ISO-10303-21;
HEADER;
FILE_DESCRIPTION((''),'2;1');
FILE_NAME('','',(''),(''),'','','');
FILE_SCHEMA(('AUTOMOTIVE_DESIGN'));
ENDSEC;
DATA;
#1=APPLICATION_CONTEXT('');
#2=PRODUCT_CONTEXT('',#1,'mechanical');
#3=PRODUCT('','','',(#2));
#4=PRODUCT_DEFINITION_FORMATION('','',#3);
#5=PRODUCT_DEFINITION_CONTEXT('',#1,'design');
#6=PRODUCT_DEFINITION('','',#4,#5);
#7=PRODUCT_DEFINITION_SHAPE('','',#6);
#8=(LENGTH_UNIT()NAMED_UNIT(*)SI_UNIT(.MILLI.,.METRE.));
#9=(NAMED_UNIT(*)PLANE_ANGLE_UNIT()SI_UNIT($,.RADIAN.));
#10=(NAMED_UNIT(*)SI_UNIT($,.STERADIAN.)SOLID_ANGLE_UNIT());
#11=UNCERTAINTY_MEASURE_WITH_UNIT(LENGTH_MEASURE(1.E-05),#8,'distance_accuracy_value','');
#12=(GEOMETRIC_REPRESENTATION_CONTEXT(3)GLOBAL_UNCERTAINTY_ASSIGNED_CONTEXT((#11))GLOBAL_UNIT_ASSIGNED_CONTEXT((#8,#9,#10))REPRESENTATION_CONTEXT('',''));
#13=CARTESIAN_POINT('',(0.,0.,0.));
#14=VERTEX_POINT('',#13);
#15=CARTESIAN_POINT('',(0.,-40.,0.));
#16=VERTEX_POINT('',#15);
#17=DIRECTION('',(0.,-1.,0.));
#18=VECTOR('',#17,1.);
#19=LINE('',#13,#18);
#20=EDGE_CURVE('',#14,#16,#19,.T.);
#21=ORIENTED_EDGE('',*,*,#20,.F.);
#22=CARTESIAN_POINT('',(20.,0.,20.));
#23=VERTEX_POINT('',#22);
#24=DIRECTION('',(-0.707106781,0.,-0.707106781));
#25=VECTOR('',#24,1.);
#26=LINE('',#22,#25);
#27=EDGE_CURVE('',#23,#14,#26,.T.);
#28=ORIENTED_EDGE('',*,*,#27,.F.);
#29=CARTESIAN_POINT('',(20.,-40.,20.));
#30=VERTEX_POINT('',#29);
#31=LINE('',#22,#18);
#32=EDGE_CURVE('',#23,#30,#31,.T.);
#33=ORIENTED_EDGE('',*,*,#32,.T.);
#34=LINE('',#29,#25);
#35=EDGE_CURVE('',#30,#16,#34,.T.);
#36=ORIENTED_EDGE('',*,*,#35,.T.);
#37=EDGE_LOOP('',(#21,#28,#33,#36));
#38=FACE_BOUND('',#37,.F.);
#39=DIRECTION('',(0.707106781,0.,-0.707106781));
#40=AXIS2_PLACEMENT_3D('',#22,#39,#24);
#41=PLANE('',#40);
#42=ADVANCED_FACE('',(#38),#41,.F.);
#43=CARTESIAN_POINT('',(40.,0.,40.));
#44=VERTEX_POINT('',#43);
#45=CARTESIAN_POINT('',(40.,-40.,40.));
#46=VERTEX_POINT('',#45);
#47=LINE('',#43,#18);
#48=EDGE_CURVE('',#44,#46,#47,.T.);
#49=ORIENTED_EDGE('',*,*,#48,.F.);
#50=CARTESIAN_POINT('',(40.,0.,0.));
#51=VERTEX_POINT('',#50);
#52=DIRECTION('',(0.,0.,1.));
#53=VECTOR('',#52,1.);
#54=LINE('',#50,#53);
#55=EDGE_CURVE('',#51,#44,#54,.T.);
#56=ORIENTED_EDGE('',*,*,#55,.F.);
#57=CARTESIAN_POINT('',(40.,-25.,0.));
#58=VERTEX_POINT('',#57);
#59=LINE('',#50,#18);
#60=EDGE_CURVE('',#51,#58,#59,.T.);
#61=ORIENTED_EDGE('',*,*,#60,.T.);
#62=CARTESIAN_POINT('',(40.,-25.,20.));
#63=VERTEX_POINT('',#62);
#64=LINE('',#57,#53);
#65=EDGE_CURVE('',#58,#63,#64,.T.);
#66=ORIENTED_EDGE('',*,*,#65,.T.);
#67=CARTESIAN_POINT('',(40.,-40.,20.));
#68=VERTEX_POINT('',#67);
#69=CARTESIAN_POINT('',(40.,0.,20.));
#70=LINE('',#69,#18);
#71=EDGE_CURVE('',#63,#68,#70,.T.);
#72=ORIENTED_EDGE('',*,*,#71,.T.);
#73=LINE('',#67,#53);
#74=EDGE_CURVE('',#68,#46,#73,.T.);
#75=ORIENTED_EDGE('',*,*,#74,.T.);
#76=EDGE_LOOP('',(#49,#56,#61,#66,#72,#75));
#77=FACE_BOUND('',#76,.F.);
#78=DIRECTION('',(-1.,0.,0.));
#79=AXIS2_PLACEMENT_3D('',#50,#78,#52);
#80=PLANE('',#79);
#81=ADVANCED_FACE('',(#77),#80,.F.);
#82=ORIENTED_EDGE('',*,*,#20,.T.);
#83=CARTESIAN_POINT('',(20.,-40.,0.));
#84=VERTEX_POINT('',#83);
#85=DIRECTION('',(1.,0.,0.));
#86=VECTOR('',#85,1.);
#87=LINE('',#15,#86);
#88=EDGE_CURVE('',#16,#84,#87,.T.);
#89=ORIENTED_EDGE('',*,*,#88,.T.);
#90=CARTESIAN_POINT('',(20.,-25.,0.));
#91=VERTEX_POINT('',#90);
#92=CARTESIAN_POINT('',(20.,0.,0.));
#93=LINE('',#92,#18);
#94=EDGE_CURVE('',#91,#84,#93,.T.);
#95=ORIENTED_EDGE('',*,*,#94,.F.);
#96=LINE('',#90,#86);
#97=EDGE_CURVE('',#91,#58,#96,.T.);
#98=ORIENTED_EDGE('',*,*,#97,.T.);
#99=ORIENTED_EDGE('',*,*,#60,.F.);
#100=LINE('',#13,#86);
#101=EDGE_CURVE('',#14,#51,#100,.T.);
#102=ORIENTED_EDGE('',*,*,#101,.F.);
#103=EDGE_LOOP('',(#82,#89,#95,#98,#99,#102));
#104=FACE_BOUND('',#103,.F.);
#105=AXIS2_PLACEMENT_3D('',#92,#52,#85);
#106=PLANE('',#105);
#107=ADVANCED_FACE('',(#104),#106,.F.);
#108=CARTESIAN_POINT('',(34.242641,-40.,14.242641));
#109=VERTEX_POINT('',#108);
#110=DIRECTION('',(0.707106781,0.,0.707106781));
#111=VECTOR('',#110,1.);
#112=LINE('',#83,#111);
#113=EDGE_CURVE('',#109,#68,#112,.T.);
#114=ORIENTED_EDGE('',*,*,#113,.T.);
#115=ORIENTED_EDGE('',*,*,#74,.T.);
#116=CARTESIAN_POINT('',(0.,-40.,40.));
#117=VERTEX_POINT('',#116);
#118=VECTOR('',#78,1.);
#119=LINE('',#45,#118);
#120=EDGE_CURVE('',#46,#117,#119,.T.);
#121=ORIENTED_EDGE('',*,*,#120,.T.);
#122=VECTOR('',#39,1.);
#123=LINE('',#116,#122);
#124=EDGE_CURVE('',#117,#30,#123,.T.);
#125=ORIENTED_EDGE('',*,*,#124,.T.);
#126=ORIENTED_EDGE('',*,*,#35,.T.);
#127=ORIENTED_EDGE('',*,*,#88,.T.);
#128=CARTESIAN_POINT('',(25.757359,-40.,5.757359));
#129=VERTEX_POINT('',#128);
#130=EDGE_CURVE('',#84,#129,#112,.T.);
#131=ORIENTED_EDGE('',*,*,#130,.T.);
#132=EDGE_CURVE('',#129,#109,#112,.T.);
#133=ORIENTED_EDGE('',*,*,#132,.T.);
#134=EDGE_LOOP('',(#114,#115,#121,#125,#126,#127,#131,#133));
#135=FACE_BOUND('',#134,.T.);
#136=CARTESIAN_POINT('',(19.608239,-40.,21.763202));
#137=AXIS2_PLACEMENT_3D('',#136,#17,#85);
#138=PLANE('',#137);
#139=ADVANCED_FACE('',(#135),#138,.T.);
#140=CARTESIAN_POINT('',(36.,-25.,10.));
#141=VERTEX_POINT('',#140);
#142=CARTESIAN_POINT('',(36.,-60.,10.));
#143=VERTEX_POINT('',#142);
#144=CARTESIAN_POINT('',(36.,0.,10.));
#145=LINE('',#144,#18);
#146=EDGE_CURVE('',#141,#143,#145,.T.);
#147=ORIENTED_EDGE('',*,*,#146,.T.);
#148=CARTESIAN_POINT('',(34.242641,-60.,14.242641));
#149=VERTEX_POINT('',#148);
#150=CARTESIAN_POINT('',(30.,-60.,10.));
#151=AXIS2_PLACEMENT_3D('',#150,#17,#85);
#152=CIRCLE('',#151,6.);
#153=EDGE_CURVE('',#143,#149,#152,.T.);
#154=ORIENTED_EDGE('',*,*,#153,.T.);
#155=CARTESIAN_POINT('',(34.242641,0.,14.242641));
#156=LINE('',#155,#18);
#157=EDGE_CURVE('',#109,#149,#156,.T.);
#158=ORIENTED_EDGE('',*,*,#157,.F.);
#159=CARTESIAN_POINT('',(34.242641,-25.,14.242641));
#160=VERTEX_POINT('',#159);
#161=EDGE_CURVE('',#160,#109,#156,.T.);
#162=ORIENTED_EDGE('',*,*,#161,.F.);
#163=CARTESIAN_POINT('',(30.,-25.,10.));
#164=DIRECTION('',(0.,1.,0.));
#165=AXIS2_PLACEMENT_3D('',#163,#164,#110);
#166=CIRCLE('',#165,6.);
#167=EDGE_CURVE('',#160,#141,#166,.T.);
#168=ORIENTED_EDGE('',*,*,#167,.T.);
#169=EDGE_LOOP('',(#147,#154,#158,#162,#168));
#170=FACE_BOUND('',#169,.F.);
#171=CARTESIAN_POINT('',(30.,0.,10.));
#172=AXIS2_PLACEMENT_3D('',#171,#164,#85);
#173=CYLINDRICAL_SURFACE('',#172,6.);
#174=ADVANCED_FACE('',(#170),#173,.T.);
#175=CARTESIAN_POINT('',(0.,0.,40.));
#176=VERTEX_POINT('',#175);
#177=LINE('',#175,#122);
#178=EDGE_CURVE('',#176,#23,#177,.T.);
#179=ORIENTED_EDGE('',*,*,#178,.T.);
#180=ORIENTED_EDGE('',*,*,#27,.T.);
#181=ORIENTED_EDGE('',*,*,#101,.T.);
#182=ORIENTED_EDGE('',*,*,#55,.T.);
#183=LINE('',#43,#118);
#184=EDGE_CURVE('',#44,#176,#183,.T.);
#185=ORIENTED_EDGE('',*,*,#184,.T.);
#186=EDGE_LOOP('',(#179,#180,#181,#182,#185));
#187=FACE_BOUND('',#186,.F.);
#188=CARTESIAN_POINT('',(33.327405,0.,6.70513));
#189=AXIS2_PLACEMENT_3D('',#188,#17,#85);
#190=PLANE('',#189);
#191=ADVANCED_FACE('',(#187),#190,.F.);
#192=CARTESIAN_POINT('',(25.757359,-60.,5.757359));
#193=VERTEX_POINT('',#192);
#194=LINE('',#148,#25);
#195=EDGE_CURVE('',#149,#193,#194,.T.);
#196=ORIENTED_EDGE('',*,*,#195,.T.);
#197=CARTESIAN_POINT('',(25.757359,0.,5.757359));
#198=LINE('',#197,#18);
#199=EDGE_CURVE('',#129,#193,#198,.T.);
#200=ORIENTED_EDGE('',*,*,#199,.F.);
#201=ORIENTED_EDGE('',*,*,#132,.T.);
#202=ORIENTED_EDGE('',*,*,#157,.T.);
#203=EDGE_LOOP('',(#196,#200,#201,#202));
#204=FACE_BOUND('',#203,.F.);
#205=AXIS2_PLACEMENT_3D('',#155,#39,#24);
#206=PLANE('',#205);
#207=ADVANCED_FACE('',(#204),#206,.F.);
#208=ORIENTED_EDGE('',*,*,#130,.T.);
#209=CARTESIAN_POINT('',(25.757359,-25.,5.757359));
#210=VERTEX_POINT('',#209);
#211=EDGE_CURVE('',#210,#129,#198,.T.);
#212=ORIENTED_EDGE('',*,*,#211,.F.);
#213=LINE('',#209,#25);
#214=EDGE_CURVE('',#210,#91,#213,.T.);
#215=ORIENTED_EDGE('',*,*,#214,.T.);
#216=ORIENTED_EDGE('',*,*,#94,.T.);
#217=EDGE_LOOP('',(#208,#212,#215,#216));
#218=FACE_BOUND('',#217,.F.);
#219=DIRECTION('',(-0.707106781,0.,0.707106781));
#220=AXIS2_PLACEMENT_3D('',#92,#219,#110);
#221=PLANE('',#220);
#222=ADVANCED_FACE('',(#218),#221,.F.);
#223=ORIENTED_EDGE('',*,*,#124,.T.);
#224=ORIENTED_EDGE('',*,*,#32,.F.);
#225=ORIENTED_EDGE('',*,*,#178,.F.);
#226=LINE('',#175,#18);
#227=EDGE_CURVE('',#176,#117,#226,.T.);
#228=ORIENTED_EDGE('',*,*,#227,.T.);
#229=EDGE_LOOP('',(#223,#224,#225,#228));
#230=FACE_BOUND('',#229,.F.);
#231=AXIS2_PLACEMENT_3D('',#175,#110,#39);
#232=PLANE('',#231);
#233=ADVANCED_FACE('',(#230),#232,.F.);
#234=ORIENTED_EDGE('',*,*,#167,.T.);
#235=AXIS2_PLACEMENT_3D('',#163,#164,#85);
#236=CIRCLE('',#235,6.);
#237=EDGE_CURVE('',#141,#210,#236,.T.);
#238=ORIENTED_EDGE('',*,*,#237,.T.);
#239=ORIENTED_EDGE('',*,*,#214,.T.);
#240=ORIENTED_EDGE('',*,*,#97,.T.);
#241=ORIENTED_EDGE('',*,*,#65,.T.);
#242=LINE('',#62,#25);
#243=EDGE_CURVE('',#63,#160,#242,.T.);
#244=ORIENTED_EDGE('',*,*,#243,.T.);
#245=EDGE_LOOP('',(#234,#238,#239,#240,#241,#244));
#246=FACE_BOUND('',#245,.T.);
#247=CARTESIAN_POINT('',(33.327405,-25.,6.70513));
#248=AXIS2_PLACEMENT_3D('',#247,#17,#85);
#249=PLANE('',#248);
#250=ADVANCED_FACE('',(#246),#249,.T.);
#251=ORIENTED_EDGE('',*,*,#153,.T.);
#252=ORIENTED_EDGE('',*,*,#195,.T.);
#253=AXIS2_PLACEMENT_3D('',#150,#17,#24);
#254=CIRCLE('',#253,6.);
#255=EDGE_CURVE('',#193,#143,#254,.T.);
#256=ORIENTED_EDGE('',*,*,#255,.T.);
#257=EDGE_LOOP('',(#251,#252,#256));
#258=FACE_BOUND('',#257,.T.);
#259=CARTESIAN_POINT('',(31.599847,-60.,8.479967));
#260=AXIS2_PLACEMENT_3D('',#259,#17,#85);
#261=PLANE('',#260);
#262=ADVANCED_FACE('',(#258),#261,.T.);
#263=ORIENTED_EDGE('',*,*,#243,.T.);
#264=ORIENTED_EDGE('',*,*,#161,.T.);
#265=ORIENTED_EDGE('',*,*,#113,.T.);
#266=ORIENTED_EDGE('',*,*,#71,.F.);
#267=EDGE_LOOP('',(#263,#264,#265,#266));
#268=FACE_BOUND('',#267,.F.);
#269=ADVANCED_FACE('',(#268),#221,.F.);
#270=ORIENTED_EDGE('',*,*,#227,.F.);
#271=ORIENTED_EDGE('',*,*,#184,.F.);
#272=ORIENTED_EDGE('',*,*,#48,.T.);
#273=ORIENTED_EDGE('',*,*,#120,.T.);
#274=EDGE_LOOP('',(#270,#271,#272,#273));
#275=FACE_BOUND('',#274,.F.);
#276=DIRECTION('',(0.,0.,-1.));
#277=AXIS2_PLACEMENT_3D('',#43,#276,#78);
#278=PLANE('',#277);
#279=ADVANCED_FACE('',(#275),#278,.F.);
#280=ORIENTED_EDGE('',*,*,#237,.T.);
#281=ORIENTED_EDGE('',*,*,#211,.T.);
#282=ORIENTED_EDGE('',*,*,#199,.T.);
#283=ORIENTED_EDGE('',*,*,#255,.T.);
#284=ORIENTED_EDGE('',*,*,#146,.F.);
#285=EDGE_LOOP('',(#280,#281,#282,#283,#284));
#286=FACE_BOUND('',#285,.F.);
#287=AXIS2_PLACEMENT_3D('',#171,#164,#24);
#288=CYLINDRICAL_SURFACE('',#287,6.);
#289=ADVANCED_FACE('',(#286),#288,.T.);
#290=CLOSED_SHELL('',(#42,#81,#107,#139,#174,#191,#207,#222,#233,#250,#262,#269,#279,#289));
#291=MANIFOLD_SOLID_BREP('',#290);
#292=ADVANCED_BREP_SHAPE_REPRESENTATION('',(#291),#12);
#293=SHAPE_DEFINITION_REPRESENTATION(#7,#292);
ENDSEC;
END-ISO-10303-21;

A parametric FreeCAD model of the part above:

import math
import FreeCAD as App
import Part
import Sketcher

V = App.Vector
Q = App.Units.Quantity

doc = App.newDocument("Part")
body = doc.addObject("PartDesign::Body", "Body")

# Sketch on XZ plane
sketch1 = doc.addObject("Sketcher::SketchObject", "Sketch")
body.addObject(sketch1)
sketch1.AttachmentSupport = (doc.XZ_Plane, [""])
sketch1.MapMode = "FlatFace"
sketch1.addGeometry(Part.LineSegment(V(20, 20, 0), V(0, 0, 0)), False)
sketch1.addGeometry(Part.LineSegment(V(0, 0, 0), V(20, 0, 0)), False)
sketch1.addGeometry(Part.LineSegment(V(20, 0, 0), V(40, 20, 0)), False)
sketch1.addGeometry(Part.LineSegment(V(40, 20, 0), V(40, 40, 0)), False)
sketch1.addGeometry(Part.LineSegment(V(40, 40, 0), V(0, 40, 0)), False)
sketch1.addGeometry(Part.LineSegment(V(0, 40, 0), V(20, 20, 0)), False)
sketch1.addConstraint(Sketcher.Constraint("Coincident", 0, 2, 1, 1))
sketch1.addConstraint(Sketcher.Constraint("Coincident", 1, 2, 2, 1))
sketch1.addConstraint(Sketcher.Constraint("Coincident", 2, 2, 3, 1))
sketch1.addConstraint(Sketcher.Constraint("Coincident", 3, 2, 4, 1))
sketch1.addConstraint(Sketcher.Constraint("Coincident", 4, 2, 5, 1))
sketch1.addConstraint(Sketcher.Constraint("Coincident", 5, 2, 0, 1))
sketch1.addConstraint(Sketcher.Constraint("Horizontal", 1))
sketch1.addConstraint(Sketcher.Constraint("Vertical", 3))
sketch1.addConstraint(Sketcher.Constraint("Horizontal", 4))
sketch1.addConstraint(Sketcher.Constraint("Coincident", 0, 2, -1, 1))
sketch1.addConstraint(Sketcher.Constraint("PointOnObject", 4, 2, -2))
sketch1.addConstraint(Sketcher.Constraint("Parallel", 0, 2))
sketch1.addConstraint(Sketcher.Constraint("Perpendicular", 2, 5))
sketch1.addConstraint(Sketcher.Constraint("Horizontal", 2, 2, 5, 2))
sketch1.addConstraint(Sketcher.Constraint("Vertical", 1, 2, 5, 2))
sketch1.addConstraint(Sketcher.Constraint("Equal", 1, 3))
sketch1.addConstraint(Sketcher.Constraint("DistanceX", 1, 1, 1, 2, 20.0))
pad1 = doc.addObject("PartDesign::Pad", "Pad")
body.addObject(pad1)
pad1.Profile = sketch1
pad1.Length = 40

# Sketch on XZ plane
sketch2 = doc.addObject("Sketcher::SketchObject", "Sketch001")
body.addObject(sketch2)
sketch2.AttachmentSupport = (doc.XZ_Plane, [""])
sketch2.MapMode = "FlatFace"
sketch2.addGeometry(Part.LineSegment(V(25.8, 5.8, 0), V(20, 0, 0)), False)
sketch2.addGeometry(Part.LineSegment(V(20, 0, 0), V(40, 0, 0)), False)
sketch2.addGeometry(Part.LineSegment(V(40, 0, 0), V(40, 20, 0)), False)
sketch2.addGeometry(Part.LineSegment(V(40, 20, 0), V(34.2, 14.2, 0)), False)
sketch2.addGeometry(Part.ArcOfCircle(Part.Circle(V(30, 10, 0), V(0, 0, 1), 6), math.radians(0), math.radians(45)), False)
sketch2.addGeometry(Part.ArcOfCircle(Part.Circle(V(30, 10, 0), V(0, 0, 1), 6), math.radians(-135), math.radians(0)), False)
sketch2.addConstraint(Sketcher.Constraint("Coincident", 0, 2, 1, 1))
sketch2.addConstraint(Sketcher.Constraint("Coincident", 1, 2, 2, 1))
sketch2.addConstraint(Sketcher.Constraint("Coincident", 2, 2, 3, 1))
sketch2.addConstraint(Sketcher.Constraint("Coincident", 3, 2, 4, 2))
sketch2.addConstraint(Sketcher.Constraint("Tangent", 4, 1, 5, 2))
sketch2.addConstraint(Sketcher.Constraint("Coincident", 5, 1, 0, 1))
sketch2.addConstraint(Sketcher.Constraint("Horizontal", 1))
sketch2.addConstraint(Sketcher.Constraint("Vertical", 2))
sketch2.addConstraint(Sketcher.Constraint("Equal", 4, 5))
sketch2.addConstraint(Sketcher.Constraint("PointOnObject", 0, 2, -1))
sketch2.addConstraint(Sketcher.Constraint("Parallel", 0, 3))
sketch2.addConstraint(Sketcher.Constraint("Horizontal", 5, 3, 4, 1))
sketch2.addConstraint(Sketcher.Constraint("Equal", 1, 2))
sketch2.addConstraint(Sketcher.Constraint("Equal", 0, 3))
sketch2.addConstraint(Sketcher.Constraint("Radius", 4, 6.0))
sketch2.addConstraint(Sketcher.Constraint("DistanceX", 1, 1, 1, 2, 20.0))
sketch2.addConstraint(Sketcher.Constraint("Angle", 0, Q("-135 deg")))
sketch2.addConstraint(Sketcher.Constraint("DistanceX", -1, 1, 4, 3, 30.0))
sketch2.addConstraint(Sketcher.Constraint("DistanceY", -1, 1, 4, 3, 10.0))
pad2 = doc.addObject("PartDesign::Pad", "Pad001")
body.addObject(pad2)
pad2.Profile = sketch2
pad2.Length = 25

# Sketch on XZ plane
sketch3 = doc.addObject("Sketcher::SketchObject", "Sketch002")
body.addObject(sketch3)
sketch3.AttachmentSupport = (doc.XZ_Plane, [""])
sketch3.MapMode = "FlatFace"
sketch3.addGeometry(Part.LineSegment(V(34.2, 14.2, 0), V(25.8, 5.8, 0)), False)
sketch3.addGeometry(Part.ArcOfCircle(Part.Circle(V(30, 10, 0), V(0, 0, 1), 6), math.radians(-135), math.radians(0)), False)
sketch3.addGeometry(Part.ArcOfCircle(Part.Circle(V(30, 10, 0), V(0, 0, 1), 6), math.radians(0), math.radians(45)), False)
sketch3.addConstraint(Sketcher.Constraint("Coincident", 0, 2, 1, 1))
sketch3.addConstraint(Sketcher.Constraint("Tangent", 1, 2, 2, 1))
sketch3.addConstraint(Sketcher.Constraint("Coincident", 2, 2, 0, 1))
sketch3.addConstraint(Sketcher.Constraint("Equal", 1, 2))
sketch3.addConstraint(Sketcher.Constraint("Horizontal", 2, 3, 1, 2))
sketch3.addConstraint(Sketcher.Constraint("Radius", 1, 6.0))
sketch3.addConstraint(Sketcher.Constraint("Angle", 0, Q("-135 deg")))
sketch3.addConstraint(Sketcher.Constraint("DistanceX", -1, 1, 1, 3, 30.0))
sketch3.addConstraint(Sketcher.Constraint("DistanceY", -1, 1, 1, 3, 10.0))
sketch3.addConstraint(Sketcher.Constraint("DistanceX", -1, 1, 0, 2, 25.757359))
pad3 = doc.addObject("PartDesign::Pad", "Pad002")
body.addObject(pad3)
pad3.Profile = sketch3
pad3.Length = 60

doc.recompute()
